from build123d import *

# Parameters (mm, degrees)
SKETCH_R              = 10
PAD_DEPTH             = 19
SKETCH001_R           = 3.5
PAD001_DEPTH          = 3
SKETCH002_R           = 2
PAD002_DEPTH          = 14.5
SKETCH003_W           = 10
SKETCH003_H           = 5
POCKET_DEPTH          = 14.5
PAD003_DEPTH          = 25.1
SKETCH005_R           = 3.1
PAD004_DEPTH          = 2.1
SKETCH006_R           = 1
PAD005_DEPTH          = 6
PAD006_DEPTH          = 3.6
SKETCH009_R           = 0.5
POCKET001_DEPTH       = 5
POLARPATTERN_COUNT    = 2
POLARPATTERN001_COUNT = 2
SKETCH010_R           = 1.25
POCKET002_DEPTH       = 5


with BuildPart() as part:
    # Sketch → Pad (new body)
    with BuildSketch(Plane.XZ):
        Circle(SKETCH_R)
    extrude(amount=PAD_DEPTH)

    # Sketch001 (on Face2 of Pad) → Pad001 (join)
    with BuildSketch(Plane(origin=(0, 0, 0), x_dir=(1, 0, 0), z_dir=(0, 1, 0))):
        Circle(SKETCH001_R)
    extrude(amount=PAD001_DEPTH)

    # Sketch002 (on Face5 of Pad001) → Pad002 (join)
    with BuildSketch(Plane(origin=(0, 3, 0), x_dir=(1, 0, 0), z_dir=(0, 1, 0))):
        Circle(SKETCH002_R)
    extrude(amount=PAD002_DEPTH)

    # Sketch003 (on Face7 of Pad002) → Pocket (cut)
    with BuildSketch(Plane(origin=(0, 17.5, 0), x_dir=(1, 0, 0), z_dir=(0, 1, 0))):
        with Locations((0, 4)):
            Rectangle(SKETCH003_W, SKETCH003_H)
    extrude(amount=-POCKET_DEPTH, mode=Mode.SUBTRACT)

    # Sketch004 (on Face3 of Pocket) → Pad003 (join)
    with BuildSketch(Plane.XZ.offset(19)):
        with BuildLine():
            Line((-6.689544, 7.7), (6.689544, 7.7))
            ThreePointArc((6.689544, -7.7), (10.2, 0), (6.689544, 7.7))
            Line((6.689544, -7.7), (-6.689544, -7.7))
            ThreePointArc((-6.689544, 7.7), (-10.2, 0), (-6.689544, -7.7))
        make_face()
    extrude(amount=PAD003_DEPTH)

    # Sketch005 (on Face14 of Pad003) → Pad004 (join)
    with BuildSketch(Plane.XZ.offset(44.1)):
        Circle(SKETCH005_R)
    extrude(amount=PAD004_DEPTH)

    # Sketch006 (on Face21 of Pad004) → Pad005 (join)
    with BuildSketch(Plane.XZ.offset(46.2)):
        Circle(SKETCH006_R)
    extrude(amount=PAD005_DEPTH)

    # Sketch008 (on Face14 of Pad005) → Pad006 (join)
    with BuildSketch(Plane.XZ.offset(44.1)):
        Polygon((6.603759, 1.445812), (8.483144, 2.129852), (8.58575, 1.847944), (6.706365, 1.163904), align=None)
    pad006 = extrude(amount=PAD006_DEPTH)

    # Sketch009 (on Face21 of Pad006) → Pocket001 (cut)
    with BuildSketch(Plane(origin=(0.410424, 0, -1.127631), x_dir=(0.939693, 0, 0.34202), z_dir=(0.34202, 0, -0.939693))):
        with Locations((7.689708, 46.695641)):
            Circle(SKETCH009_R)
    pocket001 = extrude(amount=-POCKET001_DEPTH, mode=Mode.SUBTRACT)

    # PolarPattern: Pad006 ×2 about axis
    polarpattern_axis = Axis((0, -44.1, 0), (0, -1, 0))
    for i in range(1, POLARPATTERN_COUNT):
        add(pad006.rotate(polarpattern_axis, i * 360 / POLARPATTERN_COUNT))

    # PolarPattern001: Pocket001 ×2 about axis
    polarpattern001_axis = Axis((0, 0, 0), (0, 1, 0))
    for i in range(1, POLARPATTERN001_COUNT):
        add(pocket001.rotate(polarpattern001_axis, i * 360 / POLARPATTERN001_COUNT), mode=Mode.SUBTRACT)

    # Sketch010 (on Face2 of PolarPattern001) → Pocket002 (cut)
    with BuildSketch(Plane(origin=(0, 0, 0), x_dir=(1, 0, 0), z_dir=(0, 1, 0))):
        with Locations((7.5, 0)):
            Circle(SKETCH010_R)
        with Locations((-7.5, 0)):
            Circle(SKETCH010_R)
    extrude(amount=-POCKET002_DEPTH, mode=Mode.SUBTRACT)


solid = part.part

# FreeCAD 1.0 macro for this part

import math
import FreeCAD as App
import Part
import Sketcher

V = App.Vector
Q = App.Units.Quantity


def add_polygon(sketch, points):
    """Adds a closed chain of lines whose ends are joined by coincident constraints."""
    first, n = sketch.GeometryCount, len(points)
    for a, b in zip(points, points[1:] + points[:1]):
        sketch.addGeometry(Part.LineSegment(App.Vector(*a, 0), App.Vector(*b, 0)), False)
    for i in range(n):
        sketch.addConstraint(Sketcher.Constraint("Coincident", first + i, 2, first + (i + 1) % n, 1))

doc = App.newDocument("Part")
body = doc.addObject("PartDesign::Body", "Body")

# Sketch on XZ plane
sketch1 = doc.addObject("Sketcher::SketchObject", "Sketch")
body.addObject(sketch1)
sketch1.AttachmentSupport = (doc.XZ_Plane, [""])
sketch1.MapMode = "FlatFace"
sketch1.addGeometry(Part.Circle(V(0, 0, 0), V(0, 0, 1), 10), False)
sketch1.addConstraint([
    Sketcher.Constraint("Coincident", 0, 3, -1, 1),
    Sketcher.Constraint("Diameter", 0, 20.0),
])
pad1 = doc.addObject("PartDesign::Pad", "Pad")
body.addObject(pad1)
pad1.Profile = sketch1
pad1.Length = 19

# Sketch on XZ plane
sketch2 = doc.addObject("Sketcher::SketchObject", "Sketch001")
body.addObject(sketch2)
sketch2.AttachmentSupport = (doc.XZ_Plane, [""])
sketch2.MapMode = "FlatFace"
sketch2.addGeometry(Part.Circle(V(0, 0, 0), V(0, 0, 1), 3.5), False)
sketch2.addConstraint([
    Sketcher.Constraint("Coincident", 0, 3, -1, 1),
    Sketcher.Constraint("Diameter", 0, 7.0),
])
pad2 = doc.addObject("PartDesign::Pad", "Pad001")
body.addObject(pad2)
pad2.Profile = sketch2
pad2.Length = 3
pad2.Reversed = True

# Sketch on XZ plane
sketch3 = doc.addObject("Sketcher::SketchObject", "Sketch002")
body.addObject(sketch3)
sketch3.AttachmentSupport = (doc.XZ_Plane, [""])
sketch3.MapMode = "FlatFace"
sketch3.AttachmentOffset = App.Placement(V(0, 0, -3), App.Rotation())
sketch3.addGeometry(Part.Circle(V(0, 0, 0), V(0, 0, 1), 2), False)
sketch3.addConstraint([
    Sketcher.Constraint("Coincident", 0, 3, -1, 1),
    Sketcher.Constraint("Diameter", 0, 4.0),
])
pad3 = doc.addObject("PartDesign::Pad", "Pad002")
body.addObject(pad3)
pad3.Profile = sketch3
pad3.Length = 14.5
pad3.Reversed = True

# Sketch on XZ plane
sketch4 = doc.addObject("Sketcher::SketchObject", "Sketch003")
body.addObject(sketch4)
sketch4.AttachmentSupport = (doc.XZ_Plane, [""])
sketch4.MapMode = "FlatFace"
sketch4.AttachmentOffset = App.Placement(V(0, 0, -17.5), App.Rotation())
add_polygon(sketch4, [(-5, -6), (-5, -2), (5, -2), (5, -6)])  # lines 0-3
sketch4.addConstraint([
    Sketcher.Constraint("Vertical", 0),
    Sketcher.Constraint("Horizontal", 1),
    Sketcher.Constraint("Vertical", 2),
    Sketcher.Constraint("Horizontal", 3),
    Sketcher.Constraint("DistanceX", 1, 1, 1, 2, 10.0),
    Sketcher.Constraint("DistanceY", 0, 1, 0, 2, 5.0),
    Sketcher.Constraint("DistanceX", 0, 2, -1, 1, 5.0),
    Sketcher.Constraint("DistanceY", 0, 2, -1, 1, 1.5),
])
pocket1 = doc.addObject("PartDesign::Pocket", "Pocket")
body.addObject(pocket1)
pocket1.Profile = sketch4
pocket1.Length = 14.5
pocket1.Reversed = True

# Sketch on XZ plane
sketch5 = doc.addObject("Sketcher::SketchObject", "Sketch004")
body.addObject(sketch5)
sketch5.AttachmentSupport = (doc.XZ_Plane, [""])
sketch5.MapMode = "FlatFace"
sketch5.AttachmentOffset = App.Placement(V(0, 0, 19), App.Rotation())
sketch5.addGeometry([
    Part.LineSegment(V(7, 8, 0), V(-7, 8, 0)),
    Part.ArcOfCircle(Part.Circle(V(0, 0, 0), V(0, 0, 1), 10), math.radians(131), math.radians(229)),
    Part.LineSegment(V(-7, -8, 0), V(7, -8, 0)),
    Part.ArcOfCircle(Part.Circle(V(0, 0, 0), V(0, 0, 1), 10), math.radians(-49), math.radians(49)),
], False)
sketch5.addConstraint([
    Sketcher.Constraint("Coincident", 0, 2, 1, 1),
    Sketcher.Constraint("Coincident", 1, 2, 2, 1),
    Sketcher.Constraint("Coincident", 2, 2, 3, 1),
    Sketcher.Constraint("Coincident", 3, 2, 0, 1),
    Sketcher.Constraint("Horizontal", 0),
    Sketcher.Constraint("Horizontal", 2),
    Sketcher.Constraint("Coincident", 1, 3, -1, 1),
    Sketcher.Constraint("Coincident", 3, 3, -1, 1),
    Sketcher.Constraint("Equal", 1, 3),
    Sketcher.Constraint("Vertical", 0, 2, 1, 2),
    Sketcher.Constraint("Radius", 1, 10.2),
    Sketcher.Constraint("DistanceY", -1, 1, 0, 2, 7.7),
])
pad4 = doc.addObject("PartDesign::Pad", "Pad003")
body.addObject(pad4)
pad4.Profile = sketch5
pad4.Length = 25.1

# Sketch on XZ plane
sketch6 = doc.addObject("Sketcher::SketchObject", "Sketch005")
body.addObject(sketch6)
sketch6.AttachmentSupport = (doc.XZ_Plane, [""])
sketch6.MapMode = "FlatFace"
sketch6.AttachmentOffset = App.Placement(V(0, 0, 44.1), App.Rotation())
sketch6.addGeometry(Part.Circle(V(0, 0, 0), V(0, 0, 1), 3.1), False)
sketch6.addConstraint([
    Sketcher.Constraint("Coincident", 0, 3, -1, 1),
    Sketcher.Constraint("Diameter", 0, 6.2),
])
pad5 = doc.addObject("PartDesign::Pad", "Pad004")
body.addObject(pad5)
pad5.Profile = sketch6
pad5.Length = 2.1

# Sketch on XZ plane
sketch7 = doc.addObject("Sketcher::SketchObject", "Sketch006")
body.addObject(sketch7)
sketch7.AttachmentSupport = (doc.XZ_Plane, [""])
sketch7.MapMode = "FlatFace"
sketch7.AttachmentOffset = App.Placement(V(0, 0, 46.2), App.Rotation())
sketch7.addGeometry(Part.Circle(V(0, 0, 0), V(0, 0, 1), 1), False)
sketch7.addConstraint([
    Sketcher.Constraint("Coincident", 0, 3, -1, 1),
    Sketcher.Constraint("Diameter", 0, 2.0),
])
pad6 = doc.addObject("PartDesign::Pad", "Pad005")
body.addObject(pad6)
pad6.Profile = sketch7
pad6.Length = 6

# Sketch on XZ plane
sketch8 = doc.addObject("Sketcher::SketchObject", "Sketch007")
body.addObject(sketch8)
sketch8.AttachmentSupport = (doc.XZ_Plane, [""])
sketch8.MapMode = "FlatFace"
sketch8.AttachmentOffset = App.Placement(V(0, 0, 44.1), App.Rotation())
add_polygon(sketch8, [(8.48, 2.13), (6.6, 1.45), (6.71, 1.16), (8.59, 1.85)])  # lines 0-3
sketch8.addConstraint([
    Sketcher.Constraint("Perpendicular", 0, 1),
    Sketcher.Constraint("Perpendicular", 1, 2),
    Sketcher.Constraint("Perpendicular", 2, 3),
    Sketcher.Constraint("Angle", 0, Q("-160.000005 deg")),
    Sketcher.Constraint("Distance", 0, 2.0),
    Sketcher.Constraint("Distance", 1, 0.3),
    Sketcher.Constraint("DistanceX", -1, 1, 0, 2, 6.603759),
    Sketcher.Constraint("DistanceY", -1, 1, 0, 2, 1.445812),
])
pad7 = doc.addObject("PartDesign::Pad", "Pad006")
body.addObject(pad7)
pad7.Profile = sketch8
pad7.Length = 3.6

# Sketch on an angled plane
sketch9 = doc.addObject("Sketcher::SketchObject", "Sketch008")
body.addObject(sketch9)
sketch9.Placement = App.Placement(V(0.410424, 0, -1.127631), App.Rotation(V(0.939692711, 0, 0.342019895), V(0, -1, 0), V(0.342019895, 0, -0.939692711), "ZXY"))
sketch9.addGeometry(Part.Circle(V(7.7, 46.7, 0), V(0, 0, 1), 0.5), False)
sketch9.addConstraint([
    Sketcher.Constraint("Diameter", 0, 1.0),
    Sketcher.Constraint("DistanceY", -1, 1, 0, 3, 46.695641),
    Sketcher.Constraint("DistanceX", -1, 1, 0, 3, 7.689708),
])
pocket2 = doc.addObject("PartDesign::Pocket", "Pocket001")
body.addObject(pocket2)
pocket2.Profile = sketch9
pocket2.Length = 5
doc.recompute()

polarpattern = doc.addObject("PartDesign::PolarPattern", "PolarPattern")
body.addObject(polarpattern)
polarpattern.Originals = [pad7]
polarpattern.Axis = (doc.Y_Axis, [""])
polarpattern.Angle = 360
polarpattern.Occurrences = 2
body.Tip = polarpattern
doc.recompute()

polarpattern2 = doc.addObject("PartDesign::PolarPattern", "PolarPattern001")
body.addObject(polarpattern2)
polarpattern2.Originals = [pocket2]
polarpattern2.Axis = (doc.Y_Axis, [""])
polarpattern2.Angle = 360
polarpattern2.Occurrences = 2
body.Tip = polarpattern2

# Sketch on XZ plane
sketch10 = doc.addObject("Sketcher::SketchObject", "Sketch009")
body.addObject(sketch10)
sketch10.AttachmentSupport = (doc.XZ_Plane, [""])
sketch10.MapMode = "FlatFace"
sketch10.addGeometry([
    Part.Circle(V(7.5, 0, 0), V(0, 0, 1), 1.2),
    Part.Circle(V(-7.5, 0, 0), V(0, 0, 1), 1.2),
], False)
sketch10.addConstraint([
    Sketcher.Constraint("Equal", 0, 1),
    Sketcher.Constraint("Symmetric", 0, 3, 1, 3, -1, 1),
    Sketcher.Constraint("PointOnObject", 0, 3, -1),
    Sketcher.Constraint("Diameter", 0, 2.5),
    Sketcher.Constraint("DistanceX", 1, 3, 0, 3, 15.0),
])
pocket3 = doc.addObject("PartDesign::Pocket", "Pocket002")
body.addObject(pocket3)
pocket3.Profile = sketch10
pocket3.Length = 5
pocket3.Reversed = True

doc.recompute()
